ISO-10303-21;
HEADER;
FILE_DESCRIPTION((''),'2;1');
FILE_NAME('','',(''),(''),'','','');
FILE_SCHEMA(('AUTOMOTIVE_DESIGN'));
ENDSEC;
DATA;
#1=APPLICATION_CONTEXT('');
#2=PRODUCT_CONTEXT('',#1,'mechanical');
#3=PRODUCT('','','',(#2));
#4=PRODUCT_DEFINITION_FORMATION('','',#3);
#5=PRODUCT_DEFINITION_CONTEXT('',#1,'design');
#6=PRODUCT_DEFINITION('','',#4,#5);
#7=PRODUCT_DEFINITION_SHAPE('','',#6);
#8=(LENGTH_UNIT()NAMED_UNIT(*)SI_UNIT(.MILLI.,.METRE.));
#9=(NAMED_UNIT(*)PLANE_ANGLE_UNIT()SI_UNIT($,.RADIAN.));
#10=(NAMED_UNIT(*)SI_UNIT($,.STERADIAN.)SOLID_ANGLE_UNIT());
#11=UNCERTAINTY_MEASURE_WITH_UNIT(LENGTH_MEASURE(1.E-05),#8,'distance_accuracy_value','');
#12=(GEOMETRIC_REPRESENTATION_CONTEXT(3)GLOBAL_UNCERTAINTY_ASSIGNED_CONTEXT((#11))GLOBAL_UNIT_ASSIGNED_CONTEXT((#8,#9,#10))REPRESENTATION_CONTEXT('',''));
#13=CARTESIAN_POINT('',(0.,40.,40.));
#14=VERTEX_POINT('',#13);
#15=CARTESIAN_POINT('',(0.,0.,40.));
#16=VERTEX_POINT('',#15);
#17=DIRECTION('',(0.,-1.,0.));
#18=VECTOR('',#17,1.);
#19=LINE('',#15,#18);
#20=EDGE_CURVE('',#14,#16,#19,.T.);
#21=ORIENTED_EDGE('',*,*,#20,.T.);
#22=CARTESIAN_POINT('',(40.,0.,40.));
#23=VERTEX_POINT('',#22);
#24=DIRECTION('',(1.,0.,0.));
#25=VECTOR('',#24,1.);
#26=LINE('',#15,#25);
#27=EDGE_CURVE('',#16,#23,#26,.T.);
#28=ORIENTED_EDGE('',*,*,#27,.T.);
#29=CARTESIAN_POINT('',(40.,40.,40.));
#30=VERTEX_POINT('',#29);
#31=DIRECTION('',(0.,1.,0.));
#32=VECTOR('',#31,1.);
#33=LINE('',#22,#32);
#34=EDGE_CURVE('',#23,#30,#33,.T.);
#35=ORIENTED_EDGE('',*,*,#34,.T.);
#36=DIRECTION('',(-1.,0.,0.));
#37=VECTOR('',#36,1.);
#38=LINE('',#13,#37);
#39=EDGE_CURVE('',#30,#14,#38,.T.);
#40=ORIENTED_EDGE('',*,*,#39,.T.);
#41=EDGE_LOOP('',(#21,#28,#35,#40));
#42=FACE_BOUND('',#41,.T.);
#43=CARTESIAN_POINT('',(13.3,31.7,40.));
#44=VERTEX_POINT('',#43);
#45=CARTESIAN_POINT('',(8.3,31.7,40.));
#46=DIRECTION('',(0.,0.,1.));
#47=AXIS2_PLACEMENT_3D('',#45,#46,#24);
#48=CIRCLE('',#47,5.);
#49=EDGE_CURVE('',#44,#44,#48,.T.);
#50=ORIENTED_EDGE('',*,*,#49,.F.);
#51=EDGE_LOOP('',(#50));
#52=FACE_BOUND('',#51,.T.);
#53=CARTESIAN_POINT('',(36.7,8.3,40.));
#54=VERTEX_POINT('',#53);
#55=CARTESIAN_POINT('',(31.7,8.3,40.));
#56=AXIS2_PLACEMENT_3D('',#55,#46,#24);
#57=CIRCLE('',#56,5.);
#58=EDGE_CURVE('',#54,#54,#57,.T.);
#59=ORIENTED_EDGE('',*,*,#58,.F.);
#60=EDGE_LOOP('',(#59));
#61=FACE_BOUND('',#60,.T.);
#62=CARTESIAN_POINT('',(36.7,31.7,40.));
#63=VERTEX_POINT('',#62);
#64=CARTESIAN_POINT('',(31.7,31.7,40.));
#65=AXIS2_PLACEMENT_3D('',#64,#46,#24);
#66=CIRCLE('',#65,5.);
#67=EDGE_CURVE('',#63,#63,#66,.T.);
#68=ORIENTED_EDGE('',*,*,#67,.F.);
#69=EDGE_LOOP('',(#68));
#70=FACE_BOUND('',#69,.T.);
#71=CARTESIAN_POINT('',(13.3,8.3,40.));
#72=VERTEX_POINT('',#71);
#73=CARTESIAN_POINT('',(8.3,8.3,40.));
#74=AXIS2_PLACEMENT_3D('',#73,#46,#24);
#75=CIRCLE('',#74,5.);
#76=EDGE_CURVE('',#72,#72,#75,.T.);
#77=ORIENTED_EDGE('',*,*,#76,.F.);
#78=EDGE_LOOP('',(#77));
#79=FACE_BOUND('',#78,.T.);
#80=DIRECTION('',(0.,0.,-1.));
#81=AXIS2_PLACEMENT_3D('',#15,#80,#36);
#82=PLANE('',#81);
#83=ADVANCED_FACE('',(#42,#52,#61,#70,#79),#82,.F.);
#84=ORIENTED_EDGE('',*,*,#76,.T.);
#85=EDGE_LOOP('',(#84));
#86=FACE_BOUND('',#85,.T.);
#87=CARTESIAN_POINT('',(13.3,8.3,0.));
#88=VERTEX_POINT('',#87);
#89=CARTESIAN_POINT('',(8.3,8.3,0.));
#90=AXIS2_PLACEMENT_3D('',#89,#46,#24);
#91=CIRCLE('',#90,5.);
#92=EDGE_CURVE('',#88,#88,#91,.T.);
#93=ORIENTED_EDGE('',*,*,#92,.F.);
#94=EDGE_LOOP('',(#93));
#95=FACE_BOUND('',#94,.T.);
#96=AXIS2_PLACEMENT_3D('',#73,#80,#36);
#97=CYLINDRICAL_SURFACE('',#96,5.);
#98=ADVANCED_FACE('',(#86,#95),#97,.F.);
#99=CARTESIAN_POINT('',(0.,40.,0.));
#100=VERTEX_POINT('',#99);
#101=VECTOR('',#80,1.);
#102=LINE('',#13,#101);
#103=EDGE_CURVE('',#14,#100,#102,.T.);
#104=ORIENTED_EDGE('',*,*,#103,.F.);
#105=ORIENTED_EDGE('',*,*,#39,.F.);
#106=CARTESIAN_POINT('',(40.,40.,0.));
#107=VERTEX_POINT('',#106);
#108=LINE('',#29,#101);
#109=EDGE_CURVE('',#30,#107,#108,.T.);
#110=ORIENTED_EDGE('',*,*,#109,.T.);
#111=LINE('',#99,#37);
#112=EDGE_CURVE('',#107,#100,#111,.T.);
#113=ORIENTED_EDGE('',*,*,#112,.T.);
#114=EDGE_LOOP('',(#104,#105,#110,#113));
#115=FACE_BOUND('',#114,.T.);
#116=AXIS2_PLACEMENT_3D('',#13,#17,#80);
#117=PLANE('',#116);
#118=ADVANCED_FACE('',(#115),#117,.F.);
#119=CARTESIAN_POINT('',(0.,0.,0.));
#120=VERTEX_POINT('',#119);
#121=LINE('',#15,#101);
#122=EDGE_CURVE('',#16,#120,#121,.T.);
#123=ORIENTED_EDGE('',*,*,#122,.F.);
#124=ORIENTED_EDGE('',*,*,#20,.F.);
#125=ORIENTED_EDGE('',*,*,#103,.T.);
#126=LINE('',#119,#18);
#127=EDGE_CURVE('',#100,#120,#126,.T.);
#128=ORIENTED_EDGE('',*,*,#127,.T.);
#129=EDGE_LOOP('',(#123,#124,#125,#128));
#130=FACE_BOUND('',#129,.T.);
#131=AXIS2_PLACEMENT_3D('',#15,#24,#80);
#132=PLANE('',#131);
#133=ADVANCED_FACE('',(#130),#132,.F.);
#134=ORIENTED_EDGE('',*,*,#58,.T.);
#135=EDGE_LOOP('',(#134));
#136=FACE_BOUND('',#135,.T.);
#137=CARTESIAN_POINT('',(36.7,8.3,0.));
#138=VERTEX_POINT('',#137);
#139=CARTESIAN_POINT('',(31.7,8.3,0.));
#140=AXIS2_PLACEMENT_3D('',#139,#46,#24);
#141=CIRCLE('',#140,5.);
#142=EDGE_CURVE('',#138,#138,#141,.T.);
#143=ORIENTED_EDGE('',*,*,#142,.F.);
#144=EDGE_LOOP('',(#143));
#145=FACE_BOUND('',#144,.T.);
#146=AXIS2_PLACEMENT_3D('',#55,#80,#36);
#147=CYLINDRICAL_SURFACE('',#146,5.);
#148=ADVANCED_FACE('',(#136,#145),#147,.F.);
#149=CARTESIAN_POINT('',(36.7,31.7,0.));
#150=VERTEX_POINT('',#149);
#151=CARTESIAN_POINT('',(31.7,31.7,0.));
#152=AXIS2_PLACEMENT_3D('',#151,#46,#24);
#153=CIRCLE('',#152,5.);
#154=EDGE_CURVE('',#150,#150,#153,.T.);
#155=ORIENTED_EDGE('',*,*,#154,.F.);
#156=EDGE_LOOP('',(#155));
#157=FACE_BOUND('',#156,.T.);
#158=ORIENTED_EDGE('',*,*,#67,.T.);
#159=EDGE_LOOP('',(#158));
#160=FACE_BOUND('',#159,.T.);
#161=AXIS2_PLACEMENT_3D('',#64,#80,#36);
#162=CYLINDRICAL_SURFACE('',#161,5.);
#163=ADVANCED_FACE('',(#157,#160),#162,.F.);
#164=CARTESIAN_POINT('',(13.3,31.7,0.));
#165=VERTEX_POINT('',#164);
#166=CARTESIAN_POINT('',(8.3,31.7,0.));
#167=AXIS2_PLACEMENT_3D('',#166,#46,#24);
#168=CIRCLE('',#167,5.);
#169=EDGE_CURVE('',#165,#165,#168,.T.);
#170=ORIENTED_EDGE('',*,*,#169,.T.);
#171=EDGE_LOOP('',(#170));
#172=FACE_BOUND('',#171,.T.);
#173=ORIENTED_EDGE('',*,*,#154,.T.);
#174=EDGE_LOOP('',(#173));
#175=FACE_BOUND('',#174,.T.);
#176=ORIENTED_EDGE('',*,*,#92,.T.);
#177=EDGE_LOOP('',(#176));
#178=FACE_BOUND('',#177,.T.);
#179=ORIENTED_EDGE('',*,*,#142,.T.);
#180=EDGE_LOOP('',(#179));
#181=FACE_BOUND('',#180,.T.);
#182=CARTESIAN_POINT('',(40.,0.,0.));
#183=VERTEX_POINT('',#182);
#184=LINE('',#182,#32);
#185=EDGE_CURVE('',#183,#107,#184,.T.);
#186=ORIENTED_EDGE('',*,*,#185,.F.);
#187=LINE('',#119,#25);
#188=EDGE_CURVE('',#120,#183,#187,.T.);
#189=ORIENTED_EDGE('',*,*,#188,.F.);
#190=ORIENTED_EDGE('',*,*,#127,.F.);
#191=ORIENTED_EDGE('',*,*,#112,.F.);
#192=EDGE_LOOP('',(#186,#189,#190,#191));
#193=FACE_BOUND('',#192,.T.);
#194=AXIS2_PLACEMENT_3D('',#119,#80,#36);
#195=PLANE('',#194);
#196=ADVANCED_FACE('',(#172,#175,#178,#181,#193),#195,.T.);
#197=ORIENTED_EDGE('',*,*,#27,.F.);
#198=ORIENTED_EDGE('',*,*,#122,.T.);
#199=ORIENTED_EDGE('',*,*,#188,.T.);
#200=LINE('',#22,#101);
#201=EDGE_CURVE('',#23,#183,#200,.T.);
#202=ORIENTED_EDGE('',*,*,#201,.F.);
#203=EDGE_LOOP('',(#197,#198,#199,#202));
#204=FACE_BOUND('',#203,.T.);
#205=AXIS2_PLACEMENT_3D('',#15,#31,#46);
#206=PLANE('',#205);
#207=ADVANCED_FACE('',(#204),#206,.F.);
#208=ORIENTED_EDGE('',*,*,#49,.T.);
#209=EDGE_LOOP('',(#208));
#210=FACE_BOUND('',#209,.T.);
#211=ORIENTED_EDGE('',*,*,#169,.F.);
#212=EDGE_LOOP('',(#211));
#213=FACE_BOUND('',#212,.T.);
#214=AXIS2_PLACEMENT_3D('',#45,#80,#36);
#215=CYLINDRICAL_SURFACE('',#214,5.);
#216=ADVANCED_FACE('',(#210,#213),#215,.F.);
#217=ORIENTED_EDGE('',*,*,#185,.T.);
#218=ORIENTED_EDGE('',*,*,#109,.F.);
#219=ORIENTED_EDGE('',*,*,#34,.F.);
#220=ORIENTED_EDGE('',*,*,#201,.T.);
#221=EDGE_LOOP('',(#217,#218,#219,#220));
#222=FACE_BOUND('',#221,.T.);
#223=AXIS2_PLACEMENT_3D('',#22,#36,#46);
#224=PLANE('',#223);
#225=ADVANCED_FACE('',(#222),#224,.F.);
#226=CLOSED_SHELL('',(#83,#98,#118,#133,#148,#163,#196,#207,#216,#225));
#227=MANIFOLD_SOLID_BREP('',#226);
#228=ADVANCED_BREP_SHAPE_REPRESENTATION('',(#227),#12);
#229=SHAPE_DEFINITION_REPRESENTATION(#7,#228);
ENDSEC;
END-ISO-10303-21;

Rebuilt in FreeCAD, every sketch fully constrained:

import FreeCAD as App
import Part
import Sketcher

V = App.Vector

doc = App.newDocument("Part")
body = doc.addObject("PartDesign::Body", "Body")

# Sketch on XY plane
sketch1 = body.newObject("Sketcher::SketchObject", "Sketch")
sketch1.AttachmentSupport = (doc.getObject("XY_Plane"), [""])
sketch1.MapMode = "FlatFace"
sketch1.addGeometry(Part.LineSegment(V(0, 40, 0), V(0, 0, 0)), False)
sketch1.addGeometry(Part.LineSegment(V(0, 0, 0), V(40, 0, 0)), False)
sketch1.addGeometry(Part.LineSegment(V(40, 0, 0), V(40, 40, 0)), False)
sketch1.addGeometry(Part.LineSegment(V(40, 40, 0), V(0, 40, 0)), False)
sketch1.addGeometry(Part.Circle(V(8.3, 8.3, 0), V(0, 0, 1), 5), False)
sketch1.addGeometry(Part.Circle(V(31.7, 8.3, 0), V(0, 0, 1), 5), False)
sketch1.addGeometry(Part.Circle(V(8.3, 31.7, 0), V(0, 0, 1), 5), False)
sketch1.addGeometry(Part.Circle(V(31.7, 31.7, 0), V(0, 0, 1), 5), False)
sketch1.addConstraint(Sketcher.Constraint("Coincident", 0, 2, 1, 1))
sketch1.addConstraint(Sketcher.Constraint("Coincident", 1, 2, 2, 1))
sketch1.addConstraint(Sketcher.Constraint("Coincident", 2, 2, 3, 1))
sketch1.addConstraint(Sketcher.Constraint("Coincident", 3, 2, 0, 1))
sketch1.addConstraint(Sketcher.Constraint("Vertical", 0))
sketch1.addConstraint(Sketcher.Constraint("Horizontal", 1))
sketch1.addConstraint(Sketcher.Constraint("Vertical", 2))
sketch1.addConstraint(Sketcher.Constraint("Horizontal", 3))
sketch1.addConstraint(Sketcher.Constraint("Coincident", 0, 2, -1, 1))
sketch1.addConstraint(Sketcher.Constraint("Equal", 4, 5))
sketch1.addConstraint(Sketcher.Constraint("Equal", 5, 6))
sketch1.addConstraint(Sketcher.Constraint("Equal", 6, 7))
sketch1.addConstraint(Sketcher.Constraint("Horizontal", 4, 3, 5, 3))
sketch1.addConstraint(Sketcher.Constraint("Horizontal", 6, 3, 7, 3))
sketch1.addConstraint(Sketcher.Constraint("Vertical", 4, 3, 6, 3))
sketch1.addConstraint(Sketcher.Constraint("Vertical", 5, 3, 7, 3))
sketch1.addConstraint(Sketcher.Constraint("Equal", 3, 0))
sketch1.addConstraint(Sketcher.Constraint("Diameter", 4, 10.0))
sketch1.addConstraint(Sketcher.Constraint("DistanceX", 1, 1, 1, 2, 40.0))
sketch1.addConstraint(Sketcher.Constraint("DistanceX", -1, 1, 4, 3, 8.3))
sketch1.addConstraint(Sketcher.Constraint("DistanceY", -1, 1, 4, 3, 8.3))
sketch1.addConstraint(Sketcher.Constraint("DistanceX", -1, 1, 5, 3, 31.7))
sketch1.addConstraint(Sketcher.Constraint("DistanceY", -1, 1, 6, 3, 31.7))
pad1 = body.newObject("PartDesign::Pad", "Pad")
pad1.Profile = sketch1
pad1.Length = 40

doc.recompute()
